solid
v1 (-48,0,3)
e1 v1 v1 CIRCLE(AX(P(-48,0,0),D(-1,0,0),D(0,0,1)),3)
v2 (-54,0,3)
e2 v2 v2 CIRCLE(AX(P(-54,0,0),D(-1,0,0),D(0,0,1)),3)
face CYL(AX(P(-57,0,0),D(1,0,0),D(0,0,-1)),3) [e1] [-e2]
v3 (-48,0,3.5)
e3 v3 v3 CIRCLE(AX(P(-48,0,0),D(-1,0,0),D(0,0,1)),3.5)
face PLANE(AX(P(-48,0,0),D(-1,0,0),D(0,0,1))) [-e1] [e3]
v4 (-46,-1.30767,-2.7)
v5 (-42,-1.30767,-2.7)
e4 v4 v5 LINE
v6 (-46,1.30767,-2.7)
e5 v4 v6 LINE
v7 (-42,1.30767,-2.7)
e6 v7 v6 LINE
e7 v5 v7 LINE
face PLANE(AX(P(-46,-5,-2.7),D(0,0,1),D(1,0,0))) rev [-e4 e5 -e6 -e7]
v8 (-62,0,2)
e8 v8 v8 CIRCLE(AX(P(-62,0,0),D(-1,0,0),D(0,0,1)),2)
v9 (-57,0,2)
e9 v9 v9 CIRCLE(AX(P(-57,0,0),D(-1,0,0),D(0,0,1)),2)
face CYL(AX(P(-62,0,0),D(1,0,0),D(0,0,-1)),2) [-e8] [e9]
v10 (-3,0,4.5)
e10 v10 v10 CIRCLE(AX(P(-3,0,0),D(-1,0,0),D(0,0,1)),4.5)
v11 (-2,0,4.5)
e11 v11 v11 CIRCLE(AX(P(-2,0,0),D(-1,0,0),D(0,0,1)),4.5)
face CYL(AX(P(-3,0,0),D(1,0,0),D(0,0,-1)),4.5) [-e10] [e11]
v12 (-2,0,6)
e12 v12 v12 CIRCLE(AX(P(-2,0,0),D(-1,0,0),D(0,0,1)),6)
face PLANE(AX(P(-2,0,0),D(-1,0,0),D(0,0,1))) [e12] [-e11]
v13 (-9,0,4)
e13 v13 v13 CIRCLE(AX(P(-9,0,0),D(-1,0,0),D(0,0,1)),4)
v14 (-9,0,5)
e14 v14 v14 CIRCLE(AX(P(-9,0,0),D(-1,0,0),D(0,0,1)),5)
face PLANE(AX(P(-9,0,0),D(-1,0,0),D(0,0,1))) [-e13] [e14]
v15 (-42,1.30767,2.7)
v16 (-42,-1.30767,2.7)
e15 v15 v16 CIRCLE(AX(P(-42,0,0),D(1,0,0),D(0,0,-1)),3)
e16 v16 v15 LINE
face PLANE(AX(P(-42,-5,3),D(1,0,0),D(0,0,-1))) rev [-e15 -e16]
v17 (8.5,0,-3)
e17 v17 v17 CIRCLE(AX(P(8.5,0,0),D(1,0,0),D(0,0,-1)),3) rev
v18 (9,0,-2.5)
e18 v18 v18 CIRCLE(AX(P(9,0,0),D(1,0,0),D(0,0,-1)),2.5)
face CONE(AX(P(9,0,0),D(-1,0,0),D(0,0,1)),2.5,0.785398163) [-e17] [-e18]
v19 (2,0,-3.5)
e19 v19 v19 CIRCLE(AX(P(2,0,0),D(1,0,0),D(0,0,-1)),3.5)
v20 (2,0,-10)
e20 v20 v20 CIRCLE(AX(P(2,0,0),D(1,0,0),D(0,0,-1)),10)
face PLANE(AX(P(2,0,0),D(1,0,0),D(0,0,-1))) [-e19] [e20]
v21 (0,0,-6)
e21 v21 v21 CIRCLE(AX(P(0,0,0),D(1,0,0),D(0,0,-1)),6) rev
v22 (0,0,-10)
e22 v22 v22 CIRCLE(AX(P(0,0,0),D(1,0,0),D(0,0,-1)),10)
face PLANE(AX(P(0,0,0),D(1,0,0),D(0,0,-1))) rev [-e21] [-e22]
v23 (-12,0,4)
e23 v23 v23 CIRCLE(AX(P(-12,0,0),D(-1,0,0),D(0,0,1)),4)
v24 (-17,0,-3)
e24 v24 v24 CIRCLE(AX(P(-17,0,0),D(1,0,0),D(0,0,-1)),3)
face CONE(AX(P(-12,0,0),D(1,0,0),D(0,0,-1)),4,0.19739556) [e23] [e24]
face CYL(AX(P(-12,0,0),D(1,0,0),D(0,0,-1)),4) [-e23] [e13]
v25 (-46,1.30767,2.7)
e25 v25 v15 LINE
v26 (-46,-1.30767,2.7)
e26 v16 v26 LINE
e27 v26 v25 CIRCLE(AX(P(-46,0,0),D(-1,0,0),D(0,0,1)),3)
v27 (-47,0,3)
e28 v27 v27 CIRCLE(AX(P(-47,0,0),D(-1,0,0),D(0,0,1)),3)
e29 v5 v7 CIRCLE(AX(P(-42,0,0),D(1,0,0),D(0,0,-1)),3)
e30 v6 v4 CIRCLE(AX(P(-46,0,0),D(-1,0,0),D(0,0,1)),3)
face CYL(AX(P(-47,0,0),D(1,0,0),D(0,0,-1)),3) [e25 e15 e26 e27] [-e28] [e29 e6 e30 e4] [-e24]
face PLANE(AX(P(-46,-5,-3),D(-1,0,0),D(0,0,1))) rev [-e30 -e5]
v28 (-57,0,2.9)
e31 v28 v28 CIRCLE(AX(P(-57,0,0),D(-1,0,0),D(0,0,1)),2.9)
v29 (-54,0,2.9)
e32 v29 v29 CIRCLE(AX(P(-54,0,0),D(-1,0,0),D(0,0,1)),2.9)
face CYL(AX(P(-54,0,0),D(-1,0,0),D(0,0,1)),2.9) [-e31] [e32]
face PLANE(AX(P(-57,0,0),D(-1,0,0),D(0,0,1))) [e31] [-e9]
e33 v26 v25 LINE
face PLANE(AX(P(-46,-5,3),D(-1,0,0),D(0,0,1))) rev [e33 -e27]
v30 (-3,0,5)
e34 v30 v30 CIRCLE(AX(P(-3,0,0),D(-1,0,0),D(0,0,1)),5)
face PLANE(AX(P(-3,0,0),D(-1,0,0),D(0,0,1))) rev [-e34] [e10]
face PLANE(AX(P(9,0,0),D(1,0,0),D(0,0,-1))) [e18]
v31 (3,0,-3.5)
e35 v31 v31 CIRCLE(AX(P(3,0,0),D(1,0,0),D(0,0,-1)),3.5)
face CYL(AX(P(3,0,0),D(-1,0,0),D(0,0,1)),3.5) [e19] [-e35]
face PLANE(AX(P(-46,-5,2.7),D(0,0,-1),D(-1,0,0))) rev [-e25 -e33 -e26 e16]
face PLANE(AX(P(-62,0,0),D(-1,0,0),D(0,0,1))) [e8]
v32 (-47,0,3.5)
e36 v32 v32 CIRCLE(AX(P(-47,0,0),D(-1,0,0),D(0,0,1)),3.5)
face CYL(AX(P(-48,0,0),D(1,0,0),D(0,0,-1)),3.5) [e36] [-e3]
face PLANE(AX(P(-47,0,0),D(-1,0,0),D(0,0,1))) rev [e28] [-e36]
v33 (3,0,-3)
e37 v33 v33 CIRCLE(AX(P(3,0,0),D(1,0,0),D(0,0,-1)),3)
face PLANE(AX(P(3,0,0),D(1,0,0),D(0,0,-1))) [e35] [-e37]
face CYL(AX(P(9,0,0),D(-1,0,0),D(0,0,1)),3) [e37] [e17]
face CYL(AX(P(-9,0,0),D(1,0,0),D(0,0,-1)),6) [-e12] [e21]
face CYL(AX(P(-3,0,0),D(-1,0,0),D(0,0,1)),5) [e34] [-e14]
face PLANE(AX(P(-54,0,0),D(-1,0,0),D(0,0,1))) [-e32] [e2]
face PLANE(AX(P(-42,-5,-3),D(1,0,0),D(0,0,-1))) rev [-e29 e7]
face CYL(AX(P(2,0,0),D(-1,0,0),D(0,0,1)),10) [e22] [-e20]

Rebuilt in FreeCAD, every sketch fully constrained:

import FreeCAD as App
import Part
import Sketcher

V = App.Vector
Q = App.Units.Quantity


def edges_at(feature, points):
    """Names of the edges that pass closest to the given points."""
    edges = feature.Shape.Edges
    near = lambda p: min(range(len(edges)), key=lambda i: edges[i].distToShape(Part.Vertex(*p))[0])
    return sorted({f"Edge{near(p) + 1}" for p in points})


def add_polygon(sketch, points):
    """Adds a closed chain of lines whose ends are joined by coincident constraints."""
    first, n = sketch.GeometryCount, len(points)
    for a, b in zip(points, points[1:] + points[:1]):
        sketch.addGeometry(Part.LineSegment(App.Vector(*a, 0), App.Vector(*b, 0)), False)
    for i in range(n):
        sketch.addConstraint(Sketcher.Constraint("Coincident", first + i, 2, first + (i + 1) % n, 1))

doc = App.newDocument("Part")
body = doc.addObject("PartDesign::Body", "Body")

sketch1 = body.newObject("Sketcher::SketchObject", "Sketch")
sketch1.AttachmentSupport = (doc.getObject("YZ_Plane"), [""])
sketch1.MapMode = "FlatFace"
sketch1.addGeometry(Part.Circle(V(0, 0, 0), V(0, 0, 1), 10), False)
sketch1.addConstraint(Sketcher.Constraint("Coincident", 0, 3, -1, 1))
sketch1.addConstraint(Sketcher.Constraint("Diameter", 0, Q("20 mm")))
pad1 = body.newObject("PartDesign::Pad", "Pad")
pad1.Profile = sketch1
pad1.Length = 2

sketch2 = body.newObject("Sketcher::SketchObject", "Sketch001")
sketch2.AttachmentSupport = (doc.getObject("YZ_Plane"), [""])
sketch2.MapMode = "FlatFace"
sketch2.AttachmentOffset = App.Placement(V(0, 0, 2), App.Rotation())
sketch2.addGeometry(Part.Circle(V(0, 0, 0), V(0, 0, 1), 3.5), False)
sketch2.addConstraint(Sketcher.Constraint("Coincident", 0, 3, -1, 1))
sketch2.addConstraint(Sketcher.Constraint("Diameter", 0, Q("7 mm")))
pad2 = body.newObject("PartDesign::Pad", "Pad001")
pad2.Profile = sketch2
pad2.Length = 1

sketch3 = body.newObject("Sketcher::SketchObject", "Sketch002")
sketch3.AttachmentSupport = (doc.getObject("YZ_Plane"), [""])
sketch3.MapMode = "FlatFace"
sketch3.addGeometry(Part.Circle(V(0, 0, 0), V(0, 0, 1), 6), False)
sketch3.addConstraint(Sketcher.Constraint("Coincident", 0, 3, -1, 1))
sketch3.addConstraint(Sketcher.Constraint("Diameter", 0, Q("12 mm")))
pad3 = body.newObject("PartDesign::Pad", "Pad002")
pad3.Profile = sketch3
pad3.Length = 9
pad3.Reversed = True

sketch4 = body.newObject("Sketcher::SketchObject", "Sketch003")
sketch4.AttachmentSupport = (doc.getObject("YZ_Plane"), [""])
sketch4.MapMode = "FlatFace"
sketch4.AttachmentOffset = App.Placement(V(0, 0, -9), App.Rotation())
sketch4.addGeometry(Part.Circle(V(0, 0, 0), V(0, 0, 1), 4), False)
sketch4.addConstraint(Sketcher.Constraint("Coincident", 0, 3, -1, 1))
sketch4.addConstraint(Sketcher.Constraint("Diameter", 0, Q("8 mm")))
pad4 = body.newObject("PartDesign::Pad", "Pad003")
pad4.Profile = sketch4
pad4.Length = 3
pad4.Reversed = True

sketch5 = body.newObject("Sketcher::SketchObject", "Sketch004")
sketch5.AttachmentSupport = (doc.getObject("YZ_Plane"), [""])
sketch5.MapMode = "FlatFace"
sketch5.AttachmentOffset = App.Placement(V(0, 0, 3), App.Rotation())
sketch5.addGeometry(Part.Circle(V(0, 0, 0), V(0, 0, 1), 3), False)
sketch5.addConstraint(Sketcher.Constraint("Coincident", 0, 3, -1, 1))
sketch5.addConstraint(Sketcher.Constraint("Diameter", 0, Q("6 mm")))
pad5 = body.newObject("PartDesign::Pad", "Pad004")
pad5.Profile = sketch5
pad5.Length = 6

sketch6 = body.newObject("Sketcher::SketchObject", "Sketch005")
sketch6.AttachmentSupport = (doc.getObject("YZ_Plane"), [""])
sketch6.MapMode = "FlatFace"
sketch6.AttachmentOffset = App.Placement(V(0, 0, -47), App.Rotation())
sketch6.addGeometry(Part.Circle(V(0, 0, 0), V(0, 0, 1), 3), False)
sketch6.addConstraint(Sketcher.Constraint("Coincident", 0, 3, -1, 1))
sketch6.addConstraint(Sketcher.Constraint("Diameter", 0, Q("6 mm")))
pad6 = body.newObject("PartDesign::Pad", "Pad005")
pad6.Profile = sketch6
pad6.Length = 35

sketch7 = body.newObject("Sketcher::SketchObject", "Sketch006")
sketch7.AttachmentSupport = (doc.getObject("YZ_Plane"), [""])
sketch7.MapMode = "FlatFace"
sketch7.AttachmentOffset = App.Placement(V(0, 0, -48), App.Rotation())
sketch7.addGeometry(Part.Circle(V(0, 0, 0), V(0, 0, 1), 3.5), False)
sketch7.addConstraint(Sketcher.Constraint("Coincident", 0, 3, -1, 1))
sketch7.addConstraint(Sketcher.Constraint("Diameter", 0, Q("7 mm")))
pad7 = body.newObject("PartDesign::Pad", "Pad006")
pad7.Profile = sketch7
pad7.Length = 1

sketch8 = body.newObject("Sketcher::SketchObject", "Sketch007")
sketch8.AttachmentSupport = (doc.getObject("YZ_Plane"), [""])
sketch8.MapMode = "FlatFace"
sketch8.AttachmentOffset = App.Placement(V(0, 0, -57), App.Rotation())
sketch8.addGeometry(Part.Circle(V(0, 0, 0), V(0, 0, 1), 3), False)
sketch8.addConstraint(Sketcher.Constraint("Coincident", 0, 3, -1, 1))
sketch8.addConstraint(Sketcher.Constraint("Diameter", 0, Q("6 mm")))
pad8 = body.newObject("PartDesign::Pad", "Pad007")
pad8.Profile = sketch8
pad8.Length = 9

sketch9 = body.newObject("Sketcher::SketchObject", "Sketch008")
sketch9.AttachmentSupport = (doc.getObject("YZ_Plane"), [""])
sketch9.MapMode = "FlatFace"
sketch9.AttachmentOffset = App.Placement(V(0, 0, -57), App.Rotation())
sketch9.addGeometry(Part.Circle(V(0, 0, 0), V(0, 0, 1), 2), False)
sketch9.addConstraint(Sketcher.Constraint("Coincident", 0, 3, -1, 1))
sketch9.addConstraint(Sketcher.Constraint("Diameter", 0, Q("4 mm")))
pad9 = body.newObject("PartDesign::Pad", "Pad008")
pad9.Profile = sketch9
pad9.Length = 5
pad9.Reversed = True
doc.recompute()

chamfer = body.newObject("PartDesign::Chamfer", "Chamfer")
chamfer.Base = (pad9, edges_at(pad9, [(9, 0, 3)]))
chamfer.Size = 0.5

sketch10 = body.newObject("Sketcher::SketchObject", "Sketch009")
sketch10.AttachmentSupport = (doc.getObject("XZ_Plane"), [""])
sketch10.MapMode = "FlatFace"
add_polygon(sketch10, [(-46, -3), (-46, -2.7), (-42, -2.7), (-42, -3)])
add_polygon(sketch10, [(-46, 2.7), (-46, 3), (-42, 3), (-42, 2.7)])
sketch10.addConstraint(Sketcher.Constraint("Vertical", 0))
sketch10.addConstraint(Sketcher.Constraint("Horizontal", 1))
sketch10.addConstraint(Sketcher.Constraint("Vertical", 2))
sketch10.addConstraint(Sketcher.Constraint("Horizontal", 3))
sketch10.addConstraint(Sketcher.Constraint("Vertical", 4))
sketch10.addConstraint(Sketcher.Constraint("Horizontal", 5))
sketch10.addConstraint(Sketcher.Constraint("Vertical", 6))
sketch10.addConstraint(Sketcher.Constraint("Horizontal", 7))
sketch10.addConstraint(Sketcher.Constraint("Symmetric", 3, 2, 4, 2, -1))
sketch10.addConstraint(Sketcher.Constraint("Symmetric", 1, 2, 6, 2, -1))
sketch10.addConstraint(Sketcher.Constraint("DistanceX", 1, 1, 1, 2, Q("4 mm")))
sketch10.addConstraint(Sketcher.Constraint("DistanceY", 0, 1, 0, 2, Q("0.3 mm")))
sketch10.addConstraint(Sketcher.Constraint("DistanceX", 0, 2, -1, 1, Q("46 mm")))
sketch10.addConstraint(Sketcher.Constraint("DistanceY", 2, 2, -1, 1, Q("3 mm")))
pocket1 = body.newObject("PartDesign::Pocket", "Pocket")
pocket1.Profile = sketch10
pocket1.Length = 10
pocket1.Midplane = True

sketch11 = body.newObject("Sketcher::SketchObject", "Sketch010")
sketch11.AttachmentSupport = (doc.getObject("YZ_Plane"), [""])
sketch11.MapMode = "FlatFace"
sketch11.AttachmentOffset = App.Placement(V(0, 0, -2), App.Rotation())
sketch11.addGeometry(Part.Circle(V(0, 0, 0), V(0, 0, 1), 6), False)
sketch11.addGeometry(Part.Circle(V(0, 0, 0), V(0, 0, 1), 4.5), False)
sketch11.addConstraint(Sketcher.Constraint("Coincident", 0, 3, -1, 1))
sketch11.addConstraint(Sketcher.Constraint("Coincident", 1, 3, -1, 1))
sketch11.addConstraint(Sketcher.Constraint("Diameter", 0, Q("12 mm")))
sketch11.addConstraint(Sketcher.Constraint("Diameter", 1, Q("9 mm")))
pocket2 = body.newObject("PartDesign::Pocket", "Pocket001")
pocket2.Profile = sketch11
pocket2.Length = 1

sketch12 = body.newObject("Sketcher::SketchObject", "Sketch011")
sketch12.AttachmentSupport = (doc.getObject("YZ_Plane"), [""])
sketch12.MapMode = "FlatFace"
sketch12.AttachmentOffset = App.Placement(V(0, 0, -3), App.Rotation())
sketch12.addGeometry(Part.Circle(V(0, 0, 0), V(0, 0, 1), 6), False)
sketch12.addGeometry(Part.Circle(V(0, 0, 0), V(0, 0, 1), 5), False)
sketch12.addConstraint(Sketcher.Constraint("Coincident", 0, 3, -1, 1))
sketch12.addConstraint(Sketcher.Constraint("Coincident", 1, 3, -1, 1))
sketch12.addConstraint(Sketcher.Constraint("Diameter", 0, Q("12 mm")))
sketch12.addConstraint(Sketcher.Constraint("Diameter", 1, Q("10 mm")))
pocket3 = body.newObject("PartDesign::Pocket", "Pocket002")
pocket3.Profile = sketch12
pocket3.Length = 6

sketch13 = body.newObject("Sketcher::SketchObject", "Sketch012")
sketch13.AttachmentSupport = (doc.getObject("XY_Plane"), [""])
sketch13.MapMode = "FlatFace"
add_polygon(sketch13, [(-12, 4), (-17, 3), (-12, 3)])
sketch13.addConstraint(Sketcher.Constraint("Horizontal", 1))
sketch13.addConstraint(Sketcher.Constraint("Vertical", 2))
sketch13.addConstraint(Sketcher.Constraint("DistanceX", 1, 1, 1, 2, Q("5 mm")))
sketch13.addConstraint(Sketcher.Constraint("DistanceY", 2, 1, 2, 2, Q("1 mm")))
sketch13.addConstraint(Sketcher.Constraint("DistanceX", 0, 2, -1, 1, Q("17 mm")))
sketch13.addConstraint(Sketcher.Constraint("DistanceY", -1, 1, 0, 2, Q("3 mm")))
revolution = body.newObject("PartDesign::Revolution", "Revolution")
revolution.Profile = sketch13
revolution.ReferenceAxis = (sketch13, ["H_Axis"])
revolution.Angle = 360

sketch14 = body.newObject("Sketcher::SketchObject", "Sketch013")
sketch14.AttachmentSupport = (doc.getObject("YZ_Plane"), [""])
sketch14.MapMode = "FlatFace"
sketch14.AttachmentOffset = App.Placement(V(0, 0, -57), App.Rotation())
sketch14.addGeometry(Part.Circle(V(0, 0, 0), V(0, 0, 1), 3), False)
sketch14.addGeometry(Part.Circle(V(0, 0, 0), V(0, 0, 1), 2.9), False)
sketch14.addConstraint(Sketcher.Constraint("Coincident", 0, 3, -1, 1))
sketch14.addConstraint(Sketcher.Constraint("Coincident", 1, 3, -1, 1))
sketch14.addConstraint(Sketcher.Constraint("Diameter", 0, Q("6 mm")))
sketch14.addConstraint(Sketcher.Constraint("Diameter", 1, Q("5.8 mm")))
pocket4 = body.newObject("PartDesign::Pocket", "Pocket003")
pocket4.Profile = sketch14
pocket4.Length = 3
pocket4.Reversed = True

doc.recompute()
